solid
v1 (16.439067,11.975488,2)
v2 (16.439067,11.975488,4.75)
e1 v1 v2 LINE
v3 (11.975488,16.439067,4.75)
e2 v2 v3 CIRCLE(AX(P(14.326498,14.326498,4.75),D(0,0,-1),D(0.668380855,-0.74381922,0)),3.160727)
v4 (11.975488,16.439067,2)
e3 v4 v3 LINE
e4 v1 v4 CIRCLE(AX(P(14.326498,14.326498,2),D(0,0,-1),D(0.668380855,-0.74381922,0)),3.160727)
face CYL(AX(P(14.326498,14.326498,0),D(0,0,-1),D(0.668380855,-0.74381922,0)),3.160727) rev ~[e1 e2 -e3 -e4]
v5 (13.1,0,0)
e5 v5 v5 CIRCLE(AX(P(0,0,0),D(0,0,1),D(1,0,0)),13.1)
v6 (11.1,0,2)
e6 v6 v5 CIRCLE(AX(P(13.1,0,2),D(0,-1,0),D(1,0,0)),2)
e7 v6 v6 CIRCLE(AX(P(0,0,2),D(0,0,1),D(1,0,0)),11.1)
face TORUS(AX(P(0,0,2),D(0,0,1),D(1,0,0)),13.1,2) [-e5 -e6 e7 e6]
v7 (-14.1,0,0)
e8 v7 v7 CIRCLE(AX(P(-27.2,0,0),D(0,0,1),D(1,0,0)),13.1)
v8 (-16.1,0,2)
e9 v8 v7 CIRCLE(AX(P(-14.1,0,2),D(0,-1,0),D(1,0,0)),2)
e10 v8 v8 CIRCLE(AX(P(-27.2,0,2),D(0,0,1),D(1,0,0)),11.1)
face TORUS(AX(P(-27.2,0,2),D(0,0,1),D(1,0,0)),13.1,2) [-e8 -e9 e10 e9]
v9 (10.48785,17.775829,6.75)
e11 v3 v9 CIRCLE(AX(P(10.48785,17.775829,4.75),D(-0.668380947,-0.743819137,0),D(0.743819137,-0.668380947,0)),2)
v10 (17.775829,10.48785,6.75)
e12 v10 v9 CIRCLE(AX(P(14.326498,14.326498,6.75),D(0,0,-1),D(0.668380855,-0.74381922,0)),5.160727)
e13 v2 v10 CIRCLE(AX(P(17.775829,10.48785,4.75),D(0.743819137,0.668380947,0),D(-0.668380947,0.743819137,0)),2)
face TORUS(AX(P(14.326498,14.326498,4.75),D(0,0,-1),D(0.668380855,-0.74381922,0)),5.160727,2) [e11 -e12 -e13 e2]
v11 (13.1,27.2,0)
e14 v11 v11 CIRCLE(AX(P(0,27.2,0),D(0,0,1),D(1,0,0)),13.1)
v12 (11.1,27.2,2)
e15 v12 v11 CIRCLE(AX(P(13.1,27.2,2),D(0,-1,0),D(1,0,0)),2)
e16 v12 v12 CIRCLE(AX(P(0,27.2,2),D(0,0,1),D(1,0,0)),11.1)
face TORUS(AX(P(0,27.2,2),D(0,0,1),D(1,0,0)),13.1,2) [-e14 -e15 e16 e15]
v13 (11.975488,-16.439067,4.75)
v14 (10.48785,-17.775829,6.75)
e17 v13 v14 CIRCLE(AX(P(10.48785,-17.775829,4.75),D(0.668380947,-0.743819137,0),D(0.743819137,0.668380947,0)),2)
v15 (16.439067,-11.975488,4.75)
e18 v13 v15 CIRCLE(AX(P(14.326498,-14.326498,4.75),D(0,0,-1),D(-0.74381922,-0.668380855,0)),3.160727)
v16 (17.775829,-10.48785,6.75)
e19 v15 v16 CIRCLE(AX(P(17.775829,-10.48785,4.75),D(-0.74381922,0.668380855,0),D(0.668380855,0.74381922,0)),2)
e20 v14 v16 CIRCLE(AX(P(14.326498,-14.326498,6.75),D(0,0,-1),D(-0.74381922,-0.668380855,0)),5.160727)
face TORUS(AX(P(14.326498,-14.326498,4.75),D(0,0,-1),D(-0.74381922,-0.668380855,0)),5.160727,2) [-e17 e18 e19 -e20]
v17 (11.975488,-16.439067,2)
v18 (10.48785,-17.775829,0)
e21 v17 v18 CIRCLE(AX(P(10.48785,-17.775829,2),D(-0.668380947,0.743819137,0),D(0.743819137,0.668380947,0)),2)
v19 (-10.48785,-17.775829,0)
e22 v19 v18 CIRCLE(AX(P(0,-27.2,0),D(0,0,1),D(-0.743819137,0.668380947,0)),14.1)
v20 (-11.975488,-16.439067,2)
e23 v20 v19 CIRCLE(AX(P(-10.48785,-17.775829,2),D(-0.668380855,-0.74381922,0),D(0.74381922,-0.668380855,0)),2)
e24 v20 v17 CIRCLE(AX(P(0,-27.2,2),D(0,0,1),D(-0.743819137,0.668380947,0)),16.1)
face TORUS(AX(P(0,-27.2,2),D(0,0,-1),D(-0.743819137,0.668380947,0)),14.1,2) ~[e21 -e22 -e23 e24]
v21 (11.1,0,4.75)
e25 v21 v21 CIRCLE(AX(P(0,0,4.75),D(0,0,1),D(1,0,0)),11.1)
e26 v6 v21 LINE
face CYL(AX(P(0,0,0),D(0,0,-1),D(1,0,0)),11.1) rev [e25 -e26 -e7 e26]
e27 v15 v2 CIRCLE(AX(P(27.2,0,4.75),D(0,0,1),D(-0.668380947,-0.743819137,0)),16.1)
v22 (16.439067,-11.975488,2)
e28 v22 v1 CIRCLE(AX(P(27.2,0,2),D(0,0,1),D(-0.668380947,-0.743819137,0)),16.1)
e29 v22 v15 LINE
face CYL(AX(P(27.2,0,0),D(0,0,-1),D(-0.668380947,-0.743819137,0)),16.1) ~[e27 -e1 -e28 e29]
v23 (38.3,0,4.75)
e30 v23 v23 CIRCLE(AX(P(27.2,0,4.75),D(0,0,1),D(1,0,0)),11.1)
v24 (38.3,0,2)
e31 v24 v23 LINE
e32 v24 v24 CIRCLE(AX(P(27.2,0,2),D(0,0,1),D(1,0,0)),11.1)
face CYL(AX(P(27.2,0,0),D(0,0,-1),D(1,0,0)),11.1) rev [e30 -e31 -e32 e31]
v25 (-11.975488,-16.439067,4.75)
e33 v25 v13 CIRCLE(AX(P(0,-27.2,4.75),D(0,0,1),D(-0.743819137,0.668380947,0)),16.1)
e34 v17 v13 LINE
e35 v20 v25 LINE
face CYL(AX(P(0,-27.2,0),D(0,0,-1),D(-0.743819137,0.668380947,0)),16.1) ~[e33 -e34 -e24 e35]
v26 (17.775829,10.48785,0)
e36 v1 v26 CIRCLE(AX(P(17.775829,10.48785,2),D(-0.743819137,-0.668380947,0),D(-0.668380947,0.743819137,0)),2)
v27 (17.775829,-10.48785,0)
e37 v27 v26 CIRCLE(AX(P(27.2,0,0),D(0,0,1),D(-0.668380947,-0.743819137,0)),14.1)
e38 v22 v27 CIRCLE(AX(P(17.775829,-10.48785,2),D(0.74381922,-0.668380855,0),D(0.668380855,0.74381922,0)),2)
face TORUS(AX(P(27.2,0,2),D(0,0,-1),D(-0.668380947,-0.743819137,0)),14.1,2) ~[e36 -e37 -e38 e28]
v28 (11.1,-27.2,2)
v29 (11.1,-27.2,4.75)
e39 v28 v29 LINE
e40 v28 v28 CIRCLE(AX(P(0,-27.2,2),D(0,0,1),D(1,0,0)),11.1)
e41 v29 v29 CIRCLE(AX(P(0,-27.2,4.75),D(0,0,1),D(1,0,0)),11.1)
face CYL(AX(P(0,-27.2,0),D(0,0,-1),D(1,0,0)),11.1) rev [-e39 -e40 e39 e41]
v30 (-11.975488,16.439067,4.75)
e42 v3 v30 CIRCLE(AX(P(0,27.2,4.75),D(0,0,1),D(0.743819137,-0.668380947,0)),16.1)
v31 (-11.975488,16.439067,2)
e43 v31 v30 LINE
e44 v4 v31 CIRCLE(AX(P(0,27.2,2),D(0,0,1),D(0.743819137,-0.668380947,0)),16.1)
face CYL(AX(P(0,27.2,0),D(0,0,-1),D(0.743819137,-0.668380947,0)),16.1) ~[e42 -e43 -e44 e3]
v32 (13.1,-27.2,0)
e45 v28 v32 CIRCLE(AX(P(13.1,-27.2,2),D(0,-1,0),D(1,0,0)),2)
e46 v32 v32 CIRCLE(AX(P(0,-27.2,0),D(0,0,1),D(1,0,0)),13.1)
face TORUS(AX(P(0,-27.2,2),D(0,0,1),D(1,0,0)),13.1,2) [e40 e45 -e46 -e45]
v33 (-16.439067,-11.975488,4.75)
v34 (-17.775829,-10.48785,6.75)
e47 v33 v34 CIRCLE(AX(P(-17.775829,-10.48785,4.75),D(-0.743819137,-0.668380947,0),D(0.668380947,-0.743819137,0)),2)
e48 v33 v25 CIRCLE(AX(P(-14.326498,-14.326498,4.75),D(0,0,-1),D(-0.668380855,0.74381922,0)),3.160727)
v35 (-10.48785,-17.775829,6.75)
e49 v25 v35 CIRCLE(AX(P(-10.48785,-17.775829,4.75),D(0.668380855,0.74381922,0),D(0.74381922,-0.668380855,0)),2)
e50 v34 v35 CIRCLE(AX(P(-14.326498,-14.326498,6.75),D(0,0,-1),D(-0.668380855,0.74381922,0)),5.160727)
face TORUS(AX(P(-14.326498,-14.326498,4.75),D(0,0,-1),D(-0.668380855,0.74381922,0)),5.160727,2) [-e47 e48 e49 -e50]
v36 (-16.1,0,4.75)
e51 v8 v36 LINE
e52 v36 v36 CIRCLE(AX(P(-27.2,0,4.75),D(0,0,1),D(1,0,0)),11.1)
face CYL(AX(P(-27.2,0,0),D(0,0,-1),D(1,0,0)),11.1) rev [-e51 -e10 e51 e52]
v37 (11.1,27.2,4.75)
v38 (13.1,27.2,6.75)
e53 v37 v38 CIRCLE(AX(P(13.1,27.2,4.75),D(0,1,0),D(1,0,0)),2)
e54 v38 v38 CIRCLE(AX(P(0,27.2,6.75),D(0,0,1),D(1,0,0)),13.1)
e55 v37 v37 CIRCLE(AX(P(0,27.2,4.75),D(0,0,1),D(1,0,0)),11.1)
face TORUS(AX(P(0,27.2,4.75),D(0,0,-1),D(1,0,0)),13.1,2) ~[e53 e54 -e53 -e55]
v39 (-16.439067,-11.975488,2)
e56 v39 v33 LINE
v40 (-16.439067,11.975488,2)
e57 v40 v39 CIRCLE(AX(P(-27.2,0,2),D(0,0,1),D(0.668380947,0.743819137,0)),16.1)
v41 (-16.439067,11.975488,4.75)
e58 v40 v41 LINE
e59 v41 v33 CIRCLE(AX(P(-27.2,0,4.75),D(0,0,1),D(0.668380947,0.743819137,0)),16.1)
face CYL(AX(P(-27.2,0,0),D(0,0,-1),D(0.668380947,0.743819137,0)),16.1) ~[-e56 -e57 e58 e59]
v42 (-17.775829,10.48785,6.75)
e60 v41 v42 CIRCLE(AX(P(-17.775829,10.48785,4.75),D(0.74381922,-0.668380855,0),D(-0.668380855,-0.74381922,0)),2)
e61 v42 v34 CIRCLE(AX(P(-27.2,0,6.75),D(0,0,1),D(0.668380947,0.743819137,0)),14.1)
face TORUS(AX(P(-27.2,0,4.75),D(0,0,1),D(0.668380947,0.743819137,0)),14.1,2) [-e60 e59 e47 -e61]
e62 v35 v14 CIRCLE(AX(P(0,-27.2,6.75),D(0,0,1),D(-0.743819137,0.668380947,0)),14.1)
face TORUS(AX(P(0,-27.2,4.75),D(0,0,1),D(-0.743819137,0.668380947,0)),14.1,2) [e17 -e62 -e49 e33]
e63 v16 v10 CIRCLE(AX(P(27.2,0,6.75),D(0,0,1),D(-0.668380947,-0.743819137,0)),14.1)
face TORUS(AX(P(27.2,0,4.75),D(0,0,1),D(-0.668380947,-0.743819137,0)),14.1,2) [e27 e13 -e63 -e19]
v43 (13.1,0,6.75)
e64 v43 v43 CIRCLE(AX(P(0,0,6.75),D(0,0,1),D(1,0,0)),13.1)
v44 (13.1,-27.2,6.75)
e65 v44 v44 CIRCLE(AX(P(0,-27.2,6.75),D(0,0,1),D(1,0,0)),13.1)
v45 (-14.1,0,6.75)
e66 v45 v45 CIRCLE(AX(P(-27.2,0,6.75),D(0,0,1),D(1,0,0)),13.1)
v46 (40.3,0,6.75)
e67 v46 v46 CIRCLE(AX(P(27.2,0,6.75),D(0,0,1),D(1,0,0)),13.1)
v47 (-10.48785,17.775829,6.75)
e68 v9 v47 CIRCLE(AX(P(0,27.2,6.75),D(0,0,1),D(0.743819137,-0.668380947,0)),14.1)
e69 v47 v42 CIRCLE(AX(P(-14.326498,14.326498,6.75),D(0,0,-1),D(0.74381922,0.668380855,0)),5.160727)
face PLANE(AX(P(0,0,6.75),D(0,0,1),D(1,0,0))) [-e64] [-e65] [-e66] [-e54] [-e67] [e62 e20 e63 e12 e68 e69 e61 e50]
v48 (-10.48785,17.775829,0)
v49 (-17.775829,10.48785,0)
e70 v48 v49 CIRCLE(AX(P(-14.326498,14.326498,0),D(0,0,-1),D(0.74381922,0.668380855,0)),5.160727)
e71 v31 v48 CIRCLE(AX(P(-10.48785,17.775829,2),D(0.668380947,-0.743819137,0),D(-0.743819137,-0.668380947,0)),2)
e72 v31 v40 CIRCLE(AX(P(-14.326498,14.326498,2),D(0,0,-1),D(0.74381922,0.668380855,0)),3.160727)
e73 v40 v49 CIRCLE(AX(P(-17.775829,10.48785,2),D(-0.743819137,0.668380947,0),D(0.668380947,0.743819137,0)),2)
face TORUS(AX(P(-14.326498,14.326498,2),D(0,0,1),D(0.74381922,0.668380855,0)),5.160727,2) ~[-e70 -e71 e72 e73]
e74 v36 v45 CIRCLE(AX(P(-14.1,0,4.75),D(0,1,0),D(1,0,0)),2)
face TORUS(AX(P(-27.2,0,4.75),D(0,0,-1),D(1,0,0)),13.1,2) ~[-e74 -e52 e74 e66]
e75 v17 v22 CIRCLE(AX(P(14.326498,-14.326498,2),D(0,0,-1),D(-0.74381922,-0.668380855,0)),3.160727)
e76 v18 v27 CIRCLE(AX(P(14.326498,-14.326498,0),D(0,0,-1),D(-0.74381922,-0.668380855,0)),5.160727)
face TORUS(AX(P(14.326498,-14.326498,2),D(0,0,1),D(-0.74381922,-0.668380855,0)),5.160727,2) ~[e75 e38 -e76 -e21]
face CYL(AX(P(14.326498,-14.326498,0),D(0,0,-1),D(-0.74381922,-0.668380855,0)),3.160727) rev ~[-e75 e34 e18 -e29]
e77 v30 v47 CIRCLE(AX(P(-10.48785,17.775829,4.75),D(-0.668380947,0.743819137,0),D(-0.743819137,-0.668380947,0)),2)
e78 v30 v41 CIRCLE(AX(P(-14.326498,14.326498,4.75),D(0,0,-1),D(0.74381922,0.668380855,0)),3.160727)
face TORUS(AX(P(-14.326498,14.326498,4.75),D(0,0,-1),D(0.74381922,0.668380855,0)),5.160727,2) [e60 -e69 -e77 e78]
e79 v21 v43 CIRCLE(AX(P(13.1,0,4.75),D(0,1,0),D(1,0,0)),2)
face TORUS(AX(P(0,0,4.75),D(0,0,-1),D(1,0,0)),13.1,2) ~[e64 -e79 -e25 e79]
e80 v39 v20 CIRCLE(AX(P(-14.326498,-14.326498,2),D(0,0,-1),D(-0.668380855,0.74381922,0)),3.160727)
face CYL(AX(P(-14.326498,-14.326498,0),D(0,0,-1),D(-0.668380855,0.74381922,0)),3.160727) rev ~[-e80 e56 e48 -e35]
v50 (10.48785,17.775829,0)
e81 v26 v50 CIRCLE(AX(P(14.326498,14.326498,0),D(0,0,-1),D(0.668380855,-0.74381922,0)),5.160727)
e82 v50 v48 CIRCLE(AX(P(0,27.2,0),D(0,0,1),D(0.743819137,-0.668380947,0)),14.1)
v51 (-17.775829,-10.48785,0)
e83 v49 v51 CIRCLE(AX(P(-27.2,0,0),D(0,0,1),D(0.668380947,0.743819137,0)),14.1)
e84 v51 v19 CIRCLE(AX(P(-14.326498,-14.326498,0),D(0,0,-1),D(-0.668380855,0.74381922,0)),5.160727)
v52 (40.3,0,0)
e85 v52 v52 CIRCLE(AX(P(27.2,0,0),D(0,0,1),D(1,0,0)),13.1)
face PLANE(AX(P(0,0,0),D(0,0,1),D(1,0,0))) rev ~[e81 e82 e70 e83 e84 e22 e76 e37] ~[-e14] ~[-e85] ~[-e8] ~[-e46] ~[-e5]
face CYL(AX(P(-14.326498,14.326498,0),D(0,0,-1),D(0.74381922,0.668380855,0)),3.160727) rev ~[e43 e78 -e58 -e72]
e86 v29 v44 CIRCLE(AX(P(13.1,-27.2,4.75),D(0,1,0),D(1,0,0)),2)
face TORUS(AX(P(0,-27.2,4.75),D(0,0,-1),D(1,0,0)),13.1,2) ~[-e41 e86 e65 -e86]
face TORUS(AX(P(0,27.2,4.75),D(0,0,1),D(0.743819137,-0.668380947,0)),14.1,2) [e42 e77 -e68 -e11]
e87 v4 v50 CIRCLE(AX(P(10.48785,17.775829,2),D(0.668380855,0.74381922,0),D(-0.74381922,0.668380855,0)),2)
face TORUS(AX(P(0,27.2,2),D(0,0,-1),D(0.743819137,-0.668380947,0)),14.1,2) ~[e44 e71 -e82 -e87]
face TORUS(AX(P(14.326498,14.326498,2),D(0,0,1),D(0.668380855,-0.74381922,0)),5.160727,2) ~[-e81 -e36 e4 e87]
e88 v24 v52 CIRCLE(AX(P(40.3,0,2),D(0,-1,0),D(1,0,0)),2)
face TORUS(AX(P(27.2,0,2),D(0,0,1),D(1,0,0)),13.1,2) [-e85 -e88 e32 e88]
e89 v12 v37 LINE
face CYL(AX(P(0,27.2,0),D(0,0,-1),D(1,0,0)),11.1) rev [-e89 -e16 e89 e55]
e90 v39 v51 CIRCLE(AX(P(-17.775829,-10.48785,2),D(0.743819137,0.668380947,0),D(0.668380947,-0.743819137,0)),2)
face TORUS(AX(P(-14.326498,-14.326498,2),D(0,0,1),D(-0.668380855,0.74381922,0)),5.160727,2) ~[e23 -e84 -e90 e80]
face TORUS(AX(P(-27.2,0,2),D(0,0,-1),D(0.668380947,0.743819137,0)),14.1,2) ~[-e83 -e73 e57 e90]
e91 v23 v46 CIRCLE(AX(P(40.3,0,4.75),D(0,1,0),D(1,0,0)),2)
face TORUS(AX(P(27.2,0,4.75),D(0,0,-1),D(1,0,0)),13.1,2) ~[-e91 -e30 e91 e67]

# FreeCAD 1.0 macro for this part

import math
import FreeCAD as App
import Part
import Sketcher

V = App.Vector


def edges_at(feature, points):
    """Names of the edges that pass closest to the given points."""
    edges = feature.Shape.Edges
    near = lambda p: min(range(len(edges)), key=lambda i: edges[i].distToShape(Part.Vertex(*p))[0])
    return sorted({f"Edge{near(p) + 1}" for p in points})

doc = App.newDocument("Part")
body = doc.addObject("PartDesign::Body", "Body")

# Sketch on XY plane
sketch1 = body.newObject("Sketcher::SketchObject", "Sketch")
sketch1.AttachmentSupport = (doc.getObject("XY_Plane"), [""])
sketch1.MapMode = "FlatFace"
sketch1.addGeometry([
    Part.ArcOfCircle(Part.Circle(V(0, 27.2, 0), V(0, 0, 1), 16.1), math.radians(-42), math.radians(222)),  # 0
    Part.ArcOfCircle(Part.Circle(V(-14.3, 14.3, 0), V(0, 0, 1), 3.2), math.radians(-132), math.radians(42)),  # 1
    Part.ArcOfCircle(Part.Circle(V(-27.2, 0, 0), V(0, 0, 1), 16.1), math.radians(48), math.radians(312)),  # 2
    Part.ArcOfCircle(Part.Circle(V(-14.3, -14.3, 0), V(0, 0, 1), 3.2), math.radians(-42), math.radians(132)),  # 3
    Part.ArcOfCircle(Part.Circle(V(0, -27.2, 0), V(0, 0, 1), 16.1), math.radians(138), math.radians(402)),  # 4
    Part.ArcOfCircle(Part.Circle(V(14.3, -14.3, 0), V(0, 0, 1), 3.2), math.radians(48), math.radians(222)),  # 5
    Part.ArcOfCircle(Part.Circle(V(27.2, 0, 0), V(0, 0, 1), 16.1), math.radians(-132), math.radians(132)),  # 6
    Part.ArcOfCircle(Part.Circle(V(14.3, 14.3, 0), V(0, 0, 1), 3.2), math.radians(138), math.radians(312)),  # 7
    Part.Circle(V(0, -27.2, 0), V(0, 0, 1), 11.1),  # 8
    Part.Circle(V(-27.2, 0, 0), V(0, 0, 1), 11.1),  # 9
    Part.Circle(V(0, 0, 0), V(0, 0, 1), 11.1),  # 10
    Part.Circle(V(27.2, 0, 0), V(0, 0, 1), 11.1),  # 11
    Part.Circle(V(0, 27.2, 0), V(0, 0, 1), 11.1),  # 12
], False)
sketch1.addConstraint([
    Sketcher.Constraint("Tangent", 0, 2, 1, 2),
    Sketcher.Constraint("Tangent", 1, 1, 2, 1),
    Sketcher.Constraint("Tangent", 2, 2, 3, 2),
    Sketcher.Constraint("Tangent", 3, 1, 4, 1),
    Sketcher.Constraint("Tangent", 4, 2, 5, 2),
    Sketcher.Constraint("Tangent", 5, 1, 6, 1),
    Sketcher.Constraint("Tangent", 6, 2, 7, 2),
    Sketcher.Constraint("Tangent", 7, 1, 0, 1),
    Sketcher.Constraint("Coincident", 10, 3, -1, 1),
    Sketcher.Constraint("Coincident", 8, 3, 4, 3),
    Sketcher.Constraint("Coincident", 9, 3, 2, 3),
    Sketcher.Constraint("Coincident", 11, 3, 6, 3),
    Sketcher.Constraint("Coincident", 12, 3, 0, 3),
    Sketcher.Constraint("Equal", 0, 2),
    Sketcher.Constraint("Equal", 1, 3),
    Sketcher.Constraint("Equal", 2, 4),
    Sketcher.Constraint("Equal", 3, 5),
    Sketcher.Constraint("Equal", 4, 6),
    Sketcher.Constraint("Equal", 5, 7),
    Sketcher.Constraint("Equal", 8, 9),
    Sketcher.Constraint("Equal", 9, 10),
    Sketcher.Constraint("Equal", 10, 11),
    Sketcher.Constraint("Equal", 11, 12),
    Sketcher.Constraint("Symmetric", 0, 3, 4, 3, -1, 1),
    Sketcher.Constraint("Symmetric", 2, 3, 6, 3, -1, 1),
    Sketcher.Constraint("Symmetric", 3, 3, 5, 3, -2),
    Sketcher.Constraint("Diameter", 8, 22.2),
    Sketcher.Constraint("Radius", 0, 16.1),
    Sketcher.Constraint("DistanceY", -1, 1, 0, 3, 27.2),
    Sketcher.Constraint("DistanceX", 2, 3, -1, 1, 27.2),
    Sketcher.Constraint("Radius", 1, 3.160727),
])
pad1 = body.newObject("PartDesign::Pad", "Pad")
pad1.Profile = sketch1
pad1.Length = 6.75
doc.recompute()

fillet = body.newObject("PartDesign::Fillet", "Fillet")
fillet.Base = (pad1, edges_at(pad1, [
    (-11.1, 27.2, 6.75),
    (0, 43.3, 6.75),
    (-11.1, 0, 6.75),
    (-38.3, 0, 6.75),
    (-11.1, -27.2, 6.75),
    (16.1, 0, 6.75),
    (16.1, 0, 0),
    (-11.1, 0, 0),
    (-11.1, -27.2, 0),
    (-43.3, 0, 0),
    (-38.3, 0, 0),
    (-11.1, 27.2, 0),
]))
fillet.Radius = 2

doc.recompute()
